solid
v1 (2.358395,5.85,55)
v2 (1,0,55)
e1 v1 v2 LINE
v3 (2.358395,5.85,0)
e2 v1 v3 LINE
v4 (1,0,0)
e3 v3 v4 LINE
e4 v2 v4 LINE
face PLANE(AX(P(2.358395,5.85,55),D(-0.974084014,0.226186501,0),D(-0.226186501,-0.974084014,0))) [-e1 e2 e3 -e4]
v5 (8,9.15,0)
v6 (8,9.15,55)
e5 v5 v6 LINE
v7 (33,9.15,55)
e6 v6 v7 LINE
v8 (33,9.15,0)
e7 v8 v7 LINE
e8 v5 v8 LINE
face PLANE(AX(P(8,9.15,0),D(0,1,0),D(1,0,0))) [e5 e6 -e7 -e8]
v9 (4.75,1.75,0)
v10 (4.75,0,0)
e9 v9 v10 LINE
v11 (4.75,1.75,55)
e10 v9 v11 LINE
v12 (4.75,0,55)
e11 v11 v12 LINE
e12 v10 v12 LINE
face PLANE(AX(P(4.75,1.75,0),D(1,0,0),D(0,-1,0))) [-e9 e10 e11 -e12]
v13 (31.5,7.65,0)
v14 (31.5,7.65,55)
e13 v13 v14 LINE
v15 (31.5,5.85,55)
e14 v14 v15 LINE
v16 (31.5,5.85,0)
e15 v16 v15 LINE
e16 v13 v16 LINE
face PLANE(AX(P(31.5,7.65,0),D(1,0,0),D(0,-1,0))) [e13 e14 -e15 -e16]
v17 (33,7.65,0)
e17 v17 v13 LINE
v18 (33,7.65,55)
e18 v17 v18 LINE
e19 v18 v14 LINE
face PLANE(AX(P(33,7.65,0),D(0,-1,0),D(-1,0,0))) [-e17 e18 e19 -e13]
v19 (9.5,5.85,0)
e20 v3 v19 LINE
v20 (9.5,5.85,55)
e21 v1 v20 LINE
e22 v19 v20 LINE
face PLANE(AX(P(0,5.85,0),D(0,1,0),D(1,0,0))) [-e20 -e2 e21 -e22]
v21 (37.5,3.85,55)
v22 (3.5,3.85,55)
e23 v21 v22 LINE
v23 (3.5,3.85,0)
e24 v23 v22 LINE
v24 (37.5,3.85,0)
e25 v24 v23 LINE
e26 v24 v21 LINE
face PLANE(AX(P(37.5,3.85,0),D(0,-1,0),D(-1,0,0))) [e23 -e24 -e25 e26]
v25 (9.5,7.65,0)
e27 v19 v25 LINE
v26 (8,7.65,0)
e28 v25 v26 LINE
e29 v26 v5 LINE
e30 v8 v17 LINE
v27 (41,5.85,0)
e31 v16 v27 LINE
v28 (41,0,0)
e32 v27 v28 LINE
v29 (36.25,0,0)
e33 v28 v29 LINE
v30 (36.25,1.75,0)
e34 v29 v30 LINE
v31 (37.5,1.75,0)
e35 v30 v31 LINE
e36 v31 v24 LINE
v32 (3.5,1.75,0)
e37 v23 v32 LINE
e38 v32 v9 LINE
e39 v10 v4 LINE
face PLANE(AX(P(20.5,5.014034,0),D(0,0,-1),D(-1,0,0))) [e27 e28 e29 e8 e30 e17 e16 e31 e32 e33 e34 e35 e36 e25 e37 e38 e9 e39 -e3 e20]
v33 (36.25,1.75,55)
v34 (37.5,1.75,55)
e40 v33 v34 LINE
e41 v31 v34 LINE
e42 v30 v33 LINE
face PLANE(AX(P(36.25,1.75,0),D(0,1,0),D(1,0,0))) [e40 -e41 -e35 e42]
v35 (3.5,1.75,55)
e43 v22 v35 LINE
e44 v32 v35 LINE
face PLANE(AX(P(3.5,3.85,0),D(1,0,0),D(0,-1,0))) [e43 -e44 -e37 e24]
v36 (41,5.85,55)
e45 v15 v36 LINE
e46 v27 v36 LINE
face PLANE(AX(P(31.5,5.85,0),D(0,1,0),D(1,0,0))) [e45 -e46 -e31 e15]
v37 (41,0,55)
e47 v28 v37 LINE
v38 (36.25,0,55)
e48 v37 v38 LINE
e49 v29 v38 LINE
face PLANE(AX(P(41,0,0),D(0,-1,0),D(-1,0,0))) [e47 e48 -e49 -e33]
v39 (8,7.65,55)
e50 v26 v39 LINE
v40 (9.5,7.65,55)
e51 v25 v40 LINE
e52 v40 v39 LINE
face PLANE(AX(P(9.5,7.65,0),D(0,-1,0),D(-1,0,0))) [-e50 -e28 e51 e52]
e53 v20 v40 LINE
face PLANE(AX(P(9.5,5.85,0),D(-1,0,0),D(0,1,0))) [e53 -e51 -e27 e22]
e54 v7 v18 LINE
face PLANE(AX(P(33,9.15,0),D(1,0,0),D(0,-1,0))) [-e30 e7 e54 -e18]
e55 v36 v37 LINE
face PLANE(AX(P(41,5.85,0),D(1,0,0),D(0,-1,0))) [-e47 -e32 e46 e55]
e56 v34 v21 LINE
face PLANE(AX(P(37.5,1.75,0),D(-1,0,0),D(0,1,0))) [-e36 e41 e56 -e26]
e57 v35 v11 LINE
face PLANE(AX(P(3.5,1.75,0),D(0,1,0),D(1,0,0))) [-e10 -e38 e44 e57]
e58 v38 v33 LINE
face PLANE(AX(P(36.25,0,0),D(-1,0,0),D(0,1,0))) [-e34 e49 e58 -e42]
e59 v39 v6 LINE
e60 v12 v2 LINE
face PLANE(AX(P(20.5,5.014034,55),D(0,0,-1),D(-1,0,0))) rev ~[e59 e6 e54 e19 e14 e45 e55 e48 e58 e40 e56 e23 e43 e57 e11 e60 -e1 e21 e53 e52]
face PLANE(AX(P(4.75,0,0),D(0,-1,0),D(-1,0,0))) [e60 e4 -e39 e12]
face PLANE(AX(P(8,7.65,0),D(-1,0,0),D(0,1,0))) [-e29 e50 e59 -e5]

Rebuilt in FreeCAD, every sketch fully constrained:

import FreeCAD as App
import Part
import Sketcher

doc = App.newDocument("Part")
body = doc.addObject("PartDesign::Body", "Body")

# Sketch on XY plane
sketch1 = body.newObject("Sketcher::SketchObject", "Sketch")
sketch1.AttachmentSupport = (doc.getObject("XY_Plane"), [""])
sketch1.MapMode = "FlatFace"
sketch1.addGeometry([
    Part.LineSegment(App.Vector(0, 5.8, 0), App.Vector(0, 0, 0)),  # 0
    Part.LineSegment(App.Vector(0, 0, 0), App.Vector(4.8, 0, 0)),  # 1
    Part.LineSegment(App.Vector(4.8, 0, 0), App.Vector(4.8, 1.8, 0)),  # 2
    Part.LineSegment(App.Vector(4.8, 1.8, 0), App.Vector(3.5, 1.8, 0)),  # 3
    Part.LineSegment(App.Vector(3.5, 1.8, 0), App.Vector(3.5, 3.9, 0)),  # 4
    Part.LineSegment(App.Vector(3.5, 3.9, 0), App.Vector(37.5, 3.9, 0)),  # 5
    Part.LineSegment(App.Vector(37.5, 3.9, 0), App.Vector(37.5, 1.8, 0)),  # 6
    Part.LineSegment(App.Vector(37.5, 1.8, 0), App.Vector(36.2, 1.8, 0)),  # 7
    Part.LineSegment(App.Vector(36.2, 1.8, 0), App.Vector(36.2, 0, 0)),  # 8
    Part.LineSegment(App.Vector(36.2, 0, 0), App.Vector(41, 0, 0)),  # 9
    Part.LineSegment(App.Vector(41, 0, 0), App.Vector(41, 5.8, 0)),  # 10
    Part.LineSegment(App.Vector(41, 5.8, 0), App.Vector(31.5, 5.8, 0)),  # 11
    Part.LineSegment(App.Vector(31.5, 5.8, 0), App.Vector(31.5, 7.7, 0)),  # 12
    Part.LineSegment(App.Vector(31.5, 7.7, 0), App.Vector(33, 7.7, 0)),  # 13
    Part.LineSegment(App.Vector(33, 7.7, 0), App.Vector(33, 9.2, 0)),  # 14
    Part.LineSegment(App.Vector(33, 9.2, 0), App.Vector(8, 9.2, 0)),  # 15
    Part.LineSegment(App.Vector(8, 9.2, 0), App.Vector(8, 7.7, 0)),  # 16
    Part.LineSegment(App.Vector(8, 7.7, 0), App.Vector(9.5, 7.7, 0)),  # 17
    Part.LineSegment(App.Vector(9.5, 7.7, 0), App.Vector(9.5, 5.8, 0)),  # 18
    Part.LineSegment(App.Vector(9.5, 5.8, 0), App.Vector(0, 5.8, 0)),  # 19
], False)
sketch1.addConstraint([
    Sketcher.Constraint("Coincident", 0, 2, 1, 1),
    Sketcher.Constraint("Coincident", 1, 2, 2, 1),
    Sketcher.Constraint("Coincident", 2, 2, 3, 1),
    Sketcher.Constraint("Coincident", 3, 2, 4, 1),
    Sketcher.Constraint("Coincident", 4, 2, 5, 1),
    Sketcher.Constraint("Coincident", 5, 2, 6, 1),
    Sketcher.Constraint("Coincident", 6, 2, 7, 1),
    Sketcher.Constraint("Coincident", 7, 2, 8, 1),
    Sketcher.Constraint("Coincident", 8, 2, 9, 1),
    Sketcher.Constraint("Coincident", 9, 2, 10, 1),
    Sketcher.Constraint("Coincident", 10, 2, 11, 1),
    Sketcher.Constraint("Coincident", 11, 2, 12, 1),
    Sketcher.Constraint("Coincident", 12, 2, 13, 1),
    Sketcher.Constraint("Coincident", 13, 2, 14, 1),
    Sketcher.Constraint("Coincident", 14, 2, 15, 1),
    Sketcher.Constraint("Coincident", 15, 2, 16, 1),
    Sketcher.Constraint("Coincident", 16, 2, 17, 1),
    Sketcher.Constraint("Coincident", 17, 2, 18, 1),
    Sketcher.Constraint("Coincident", 18, 2, 19, 1),
    Sketcher.Constraint("Coincident", 19, 2, 0, 1),
    Sketcher.Constraint("Vertical", 0),
    Sketcher.Constraint("Horizontal", 1),
    Sketcher.Constraint("Vertical", 2),
    Sketcher.Constraint("Horizontal", 3),
    Sketcher.Constraint("Vertical", 4),
    Sketcher.Constraint("Horizontal", 5),
    Sketcher.Constraint("Vertical", 6),
    Sketcher.Constraint("Horizontal", 7),
    Sketcher.Constraint("Vertical", 8),
    Sketcher.Constraint("Horizontal", 9),
    Sketcher.Constraint("Vertical", 10),
    Sketcher.Constraint("Horizontal", 11),
    Sketcher.Constraint("Vertical", 12),
    Sketcher.Constraint("Horizontal", 13),
    Sketcher.Constraint("Vertical", 14),
    Sketcher.Constraint("Horizontal", 15),
    Sketcher.Constraint("Vertical", 16),
    Sketcher.Constraint("Horizontal", 17),
    Sketcher.Constraint("Vertical", 18),
    Sketcher.Constraint("Horizontal", 19),
    Sketcher.Constraint("Coincident", 0, 2, -1, 1),
    Sketcher.Constraint("PointOnObject", 8, 2, -1),
    Sketcher.Constraint("Horizontal", 3, 2, 6, 2),
    Sketcher.Constraint("Horizontal", 13, 2, 16, 2),
    Sketcher.Constraint("Horizontal", 11, 2, 18, 2),
    Sketcher.Constraint("Equal", 3, 7),
    Sketcher.Constraint("Equal", 1, 9),
    Sketcher.Constraint("Equal", 13, 17),
    Sketcher.Constraint("Equal", 11, 19),
    Sketcher.Constraint("Equal", 17, 14),
    Sketcher.Constraint("DistanceX", 5, 1, 5, 2, 34.0),
    Sketcher.Constraint("DistanceX", 15, 2, 15, 1, 25.0),
    Sketcher.Constraint("DistanceX", 11, 2, 11, 1, 9.5),
    Sketcher.Constraint("DistanceX", 13, 1, 13, 2, 1.5),
    Sketcher.Constraint("DistanceY", 4, 1, 4, 2, 2.1),
    Sketcher.Constraint("DistanceY", 12, 1, 12, 2, 1.8),
    Sketcher.Constraint("DistanceY", 5, 2, 10, 2, 2.0),
    Sketcher.Constraint("DistanceX", 1, 1, 1, 2, 4.75),
    Sketcher.Constraint("DistanceY", 0, 2, 0, 1, 5.85),
])
pad1 = body.newObject("PartDesign::Pad", "Pad")
pad1.Profile = sketch1
pad1.Length = 55

# Sketch on XY plane
sketch2 = body.newObject("Sketcher::SketchObject", "Sketch001")
sketch2.AttachmentSupport = (doc.getObject("XY_Plane"), [""])
sketch2.MapMode = "FlatFace"
sketch2.AttachmentOffset = App.Placement(App.Vector(0, 0, 55), App.Rotation())
sketch2.addGeometry([
    Part.LineSegment(App.Vector(0, 0, 0), App.Vector(1, 0, 0)),
    Part.LineSegment(App.Vector(1, 0, 0), App.Vector(2.4, 5.8, 0)),
    Part.LineSegment(App.Vector(2.4, 5.8, 0), App.Vector(0, 5.8, 0)),
    Part.LineSegment(App.Vector(0, 5.8, 0), App.Vector(0, 0, 0)),
], False)
sketch2.addConstraint([
    Sketcher.Constraint("Coincident", 0, 2, 1, 1),
    Sketcher.Constraint("Coincident", 1, 2, 2, 1),
    Sketcher.Constraint("Coincident", 2, 2, 3, 1),
    Sketcher.Constraint("Coincident", 3, 2, 0, 1),
    Sketcher.Constraint("Horizontal", 0),
    Sketcher.Constraint("Horizontal", 2),
    Sketcher.Constraint("Vertical", 3),
    Sketcher.Constraint("Coincident", 3, 2, -1, 1),
    Sketcher.Constraint("DistanceX", 0, 1, 0, 2, 1.0),
    Sketcher.Constraint("DistanceY", 3, 2, 3, 1, 5.85),
    Sketcher.Constraint("DistanceX", 2, 2, 2, 1, 2.358395),
])
pocket1 = body.newObject("PartDesign::Pocket", "Pocket")
pocket1.Profile = sketch2
pocket1.Type = "UpToFirst"

doc.recompute()
